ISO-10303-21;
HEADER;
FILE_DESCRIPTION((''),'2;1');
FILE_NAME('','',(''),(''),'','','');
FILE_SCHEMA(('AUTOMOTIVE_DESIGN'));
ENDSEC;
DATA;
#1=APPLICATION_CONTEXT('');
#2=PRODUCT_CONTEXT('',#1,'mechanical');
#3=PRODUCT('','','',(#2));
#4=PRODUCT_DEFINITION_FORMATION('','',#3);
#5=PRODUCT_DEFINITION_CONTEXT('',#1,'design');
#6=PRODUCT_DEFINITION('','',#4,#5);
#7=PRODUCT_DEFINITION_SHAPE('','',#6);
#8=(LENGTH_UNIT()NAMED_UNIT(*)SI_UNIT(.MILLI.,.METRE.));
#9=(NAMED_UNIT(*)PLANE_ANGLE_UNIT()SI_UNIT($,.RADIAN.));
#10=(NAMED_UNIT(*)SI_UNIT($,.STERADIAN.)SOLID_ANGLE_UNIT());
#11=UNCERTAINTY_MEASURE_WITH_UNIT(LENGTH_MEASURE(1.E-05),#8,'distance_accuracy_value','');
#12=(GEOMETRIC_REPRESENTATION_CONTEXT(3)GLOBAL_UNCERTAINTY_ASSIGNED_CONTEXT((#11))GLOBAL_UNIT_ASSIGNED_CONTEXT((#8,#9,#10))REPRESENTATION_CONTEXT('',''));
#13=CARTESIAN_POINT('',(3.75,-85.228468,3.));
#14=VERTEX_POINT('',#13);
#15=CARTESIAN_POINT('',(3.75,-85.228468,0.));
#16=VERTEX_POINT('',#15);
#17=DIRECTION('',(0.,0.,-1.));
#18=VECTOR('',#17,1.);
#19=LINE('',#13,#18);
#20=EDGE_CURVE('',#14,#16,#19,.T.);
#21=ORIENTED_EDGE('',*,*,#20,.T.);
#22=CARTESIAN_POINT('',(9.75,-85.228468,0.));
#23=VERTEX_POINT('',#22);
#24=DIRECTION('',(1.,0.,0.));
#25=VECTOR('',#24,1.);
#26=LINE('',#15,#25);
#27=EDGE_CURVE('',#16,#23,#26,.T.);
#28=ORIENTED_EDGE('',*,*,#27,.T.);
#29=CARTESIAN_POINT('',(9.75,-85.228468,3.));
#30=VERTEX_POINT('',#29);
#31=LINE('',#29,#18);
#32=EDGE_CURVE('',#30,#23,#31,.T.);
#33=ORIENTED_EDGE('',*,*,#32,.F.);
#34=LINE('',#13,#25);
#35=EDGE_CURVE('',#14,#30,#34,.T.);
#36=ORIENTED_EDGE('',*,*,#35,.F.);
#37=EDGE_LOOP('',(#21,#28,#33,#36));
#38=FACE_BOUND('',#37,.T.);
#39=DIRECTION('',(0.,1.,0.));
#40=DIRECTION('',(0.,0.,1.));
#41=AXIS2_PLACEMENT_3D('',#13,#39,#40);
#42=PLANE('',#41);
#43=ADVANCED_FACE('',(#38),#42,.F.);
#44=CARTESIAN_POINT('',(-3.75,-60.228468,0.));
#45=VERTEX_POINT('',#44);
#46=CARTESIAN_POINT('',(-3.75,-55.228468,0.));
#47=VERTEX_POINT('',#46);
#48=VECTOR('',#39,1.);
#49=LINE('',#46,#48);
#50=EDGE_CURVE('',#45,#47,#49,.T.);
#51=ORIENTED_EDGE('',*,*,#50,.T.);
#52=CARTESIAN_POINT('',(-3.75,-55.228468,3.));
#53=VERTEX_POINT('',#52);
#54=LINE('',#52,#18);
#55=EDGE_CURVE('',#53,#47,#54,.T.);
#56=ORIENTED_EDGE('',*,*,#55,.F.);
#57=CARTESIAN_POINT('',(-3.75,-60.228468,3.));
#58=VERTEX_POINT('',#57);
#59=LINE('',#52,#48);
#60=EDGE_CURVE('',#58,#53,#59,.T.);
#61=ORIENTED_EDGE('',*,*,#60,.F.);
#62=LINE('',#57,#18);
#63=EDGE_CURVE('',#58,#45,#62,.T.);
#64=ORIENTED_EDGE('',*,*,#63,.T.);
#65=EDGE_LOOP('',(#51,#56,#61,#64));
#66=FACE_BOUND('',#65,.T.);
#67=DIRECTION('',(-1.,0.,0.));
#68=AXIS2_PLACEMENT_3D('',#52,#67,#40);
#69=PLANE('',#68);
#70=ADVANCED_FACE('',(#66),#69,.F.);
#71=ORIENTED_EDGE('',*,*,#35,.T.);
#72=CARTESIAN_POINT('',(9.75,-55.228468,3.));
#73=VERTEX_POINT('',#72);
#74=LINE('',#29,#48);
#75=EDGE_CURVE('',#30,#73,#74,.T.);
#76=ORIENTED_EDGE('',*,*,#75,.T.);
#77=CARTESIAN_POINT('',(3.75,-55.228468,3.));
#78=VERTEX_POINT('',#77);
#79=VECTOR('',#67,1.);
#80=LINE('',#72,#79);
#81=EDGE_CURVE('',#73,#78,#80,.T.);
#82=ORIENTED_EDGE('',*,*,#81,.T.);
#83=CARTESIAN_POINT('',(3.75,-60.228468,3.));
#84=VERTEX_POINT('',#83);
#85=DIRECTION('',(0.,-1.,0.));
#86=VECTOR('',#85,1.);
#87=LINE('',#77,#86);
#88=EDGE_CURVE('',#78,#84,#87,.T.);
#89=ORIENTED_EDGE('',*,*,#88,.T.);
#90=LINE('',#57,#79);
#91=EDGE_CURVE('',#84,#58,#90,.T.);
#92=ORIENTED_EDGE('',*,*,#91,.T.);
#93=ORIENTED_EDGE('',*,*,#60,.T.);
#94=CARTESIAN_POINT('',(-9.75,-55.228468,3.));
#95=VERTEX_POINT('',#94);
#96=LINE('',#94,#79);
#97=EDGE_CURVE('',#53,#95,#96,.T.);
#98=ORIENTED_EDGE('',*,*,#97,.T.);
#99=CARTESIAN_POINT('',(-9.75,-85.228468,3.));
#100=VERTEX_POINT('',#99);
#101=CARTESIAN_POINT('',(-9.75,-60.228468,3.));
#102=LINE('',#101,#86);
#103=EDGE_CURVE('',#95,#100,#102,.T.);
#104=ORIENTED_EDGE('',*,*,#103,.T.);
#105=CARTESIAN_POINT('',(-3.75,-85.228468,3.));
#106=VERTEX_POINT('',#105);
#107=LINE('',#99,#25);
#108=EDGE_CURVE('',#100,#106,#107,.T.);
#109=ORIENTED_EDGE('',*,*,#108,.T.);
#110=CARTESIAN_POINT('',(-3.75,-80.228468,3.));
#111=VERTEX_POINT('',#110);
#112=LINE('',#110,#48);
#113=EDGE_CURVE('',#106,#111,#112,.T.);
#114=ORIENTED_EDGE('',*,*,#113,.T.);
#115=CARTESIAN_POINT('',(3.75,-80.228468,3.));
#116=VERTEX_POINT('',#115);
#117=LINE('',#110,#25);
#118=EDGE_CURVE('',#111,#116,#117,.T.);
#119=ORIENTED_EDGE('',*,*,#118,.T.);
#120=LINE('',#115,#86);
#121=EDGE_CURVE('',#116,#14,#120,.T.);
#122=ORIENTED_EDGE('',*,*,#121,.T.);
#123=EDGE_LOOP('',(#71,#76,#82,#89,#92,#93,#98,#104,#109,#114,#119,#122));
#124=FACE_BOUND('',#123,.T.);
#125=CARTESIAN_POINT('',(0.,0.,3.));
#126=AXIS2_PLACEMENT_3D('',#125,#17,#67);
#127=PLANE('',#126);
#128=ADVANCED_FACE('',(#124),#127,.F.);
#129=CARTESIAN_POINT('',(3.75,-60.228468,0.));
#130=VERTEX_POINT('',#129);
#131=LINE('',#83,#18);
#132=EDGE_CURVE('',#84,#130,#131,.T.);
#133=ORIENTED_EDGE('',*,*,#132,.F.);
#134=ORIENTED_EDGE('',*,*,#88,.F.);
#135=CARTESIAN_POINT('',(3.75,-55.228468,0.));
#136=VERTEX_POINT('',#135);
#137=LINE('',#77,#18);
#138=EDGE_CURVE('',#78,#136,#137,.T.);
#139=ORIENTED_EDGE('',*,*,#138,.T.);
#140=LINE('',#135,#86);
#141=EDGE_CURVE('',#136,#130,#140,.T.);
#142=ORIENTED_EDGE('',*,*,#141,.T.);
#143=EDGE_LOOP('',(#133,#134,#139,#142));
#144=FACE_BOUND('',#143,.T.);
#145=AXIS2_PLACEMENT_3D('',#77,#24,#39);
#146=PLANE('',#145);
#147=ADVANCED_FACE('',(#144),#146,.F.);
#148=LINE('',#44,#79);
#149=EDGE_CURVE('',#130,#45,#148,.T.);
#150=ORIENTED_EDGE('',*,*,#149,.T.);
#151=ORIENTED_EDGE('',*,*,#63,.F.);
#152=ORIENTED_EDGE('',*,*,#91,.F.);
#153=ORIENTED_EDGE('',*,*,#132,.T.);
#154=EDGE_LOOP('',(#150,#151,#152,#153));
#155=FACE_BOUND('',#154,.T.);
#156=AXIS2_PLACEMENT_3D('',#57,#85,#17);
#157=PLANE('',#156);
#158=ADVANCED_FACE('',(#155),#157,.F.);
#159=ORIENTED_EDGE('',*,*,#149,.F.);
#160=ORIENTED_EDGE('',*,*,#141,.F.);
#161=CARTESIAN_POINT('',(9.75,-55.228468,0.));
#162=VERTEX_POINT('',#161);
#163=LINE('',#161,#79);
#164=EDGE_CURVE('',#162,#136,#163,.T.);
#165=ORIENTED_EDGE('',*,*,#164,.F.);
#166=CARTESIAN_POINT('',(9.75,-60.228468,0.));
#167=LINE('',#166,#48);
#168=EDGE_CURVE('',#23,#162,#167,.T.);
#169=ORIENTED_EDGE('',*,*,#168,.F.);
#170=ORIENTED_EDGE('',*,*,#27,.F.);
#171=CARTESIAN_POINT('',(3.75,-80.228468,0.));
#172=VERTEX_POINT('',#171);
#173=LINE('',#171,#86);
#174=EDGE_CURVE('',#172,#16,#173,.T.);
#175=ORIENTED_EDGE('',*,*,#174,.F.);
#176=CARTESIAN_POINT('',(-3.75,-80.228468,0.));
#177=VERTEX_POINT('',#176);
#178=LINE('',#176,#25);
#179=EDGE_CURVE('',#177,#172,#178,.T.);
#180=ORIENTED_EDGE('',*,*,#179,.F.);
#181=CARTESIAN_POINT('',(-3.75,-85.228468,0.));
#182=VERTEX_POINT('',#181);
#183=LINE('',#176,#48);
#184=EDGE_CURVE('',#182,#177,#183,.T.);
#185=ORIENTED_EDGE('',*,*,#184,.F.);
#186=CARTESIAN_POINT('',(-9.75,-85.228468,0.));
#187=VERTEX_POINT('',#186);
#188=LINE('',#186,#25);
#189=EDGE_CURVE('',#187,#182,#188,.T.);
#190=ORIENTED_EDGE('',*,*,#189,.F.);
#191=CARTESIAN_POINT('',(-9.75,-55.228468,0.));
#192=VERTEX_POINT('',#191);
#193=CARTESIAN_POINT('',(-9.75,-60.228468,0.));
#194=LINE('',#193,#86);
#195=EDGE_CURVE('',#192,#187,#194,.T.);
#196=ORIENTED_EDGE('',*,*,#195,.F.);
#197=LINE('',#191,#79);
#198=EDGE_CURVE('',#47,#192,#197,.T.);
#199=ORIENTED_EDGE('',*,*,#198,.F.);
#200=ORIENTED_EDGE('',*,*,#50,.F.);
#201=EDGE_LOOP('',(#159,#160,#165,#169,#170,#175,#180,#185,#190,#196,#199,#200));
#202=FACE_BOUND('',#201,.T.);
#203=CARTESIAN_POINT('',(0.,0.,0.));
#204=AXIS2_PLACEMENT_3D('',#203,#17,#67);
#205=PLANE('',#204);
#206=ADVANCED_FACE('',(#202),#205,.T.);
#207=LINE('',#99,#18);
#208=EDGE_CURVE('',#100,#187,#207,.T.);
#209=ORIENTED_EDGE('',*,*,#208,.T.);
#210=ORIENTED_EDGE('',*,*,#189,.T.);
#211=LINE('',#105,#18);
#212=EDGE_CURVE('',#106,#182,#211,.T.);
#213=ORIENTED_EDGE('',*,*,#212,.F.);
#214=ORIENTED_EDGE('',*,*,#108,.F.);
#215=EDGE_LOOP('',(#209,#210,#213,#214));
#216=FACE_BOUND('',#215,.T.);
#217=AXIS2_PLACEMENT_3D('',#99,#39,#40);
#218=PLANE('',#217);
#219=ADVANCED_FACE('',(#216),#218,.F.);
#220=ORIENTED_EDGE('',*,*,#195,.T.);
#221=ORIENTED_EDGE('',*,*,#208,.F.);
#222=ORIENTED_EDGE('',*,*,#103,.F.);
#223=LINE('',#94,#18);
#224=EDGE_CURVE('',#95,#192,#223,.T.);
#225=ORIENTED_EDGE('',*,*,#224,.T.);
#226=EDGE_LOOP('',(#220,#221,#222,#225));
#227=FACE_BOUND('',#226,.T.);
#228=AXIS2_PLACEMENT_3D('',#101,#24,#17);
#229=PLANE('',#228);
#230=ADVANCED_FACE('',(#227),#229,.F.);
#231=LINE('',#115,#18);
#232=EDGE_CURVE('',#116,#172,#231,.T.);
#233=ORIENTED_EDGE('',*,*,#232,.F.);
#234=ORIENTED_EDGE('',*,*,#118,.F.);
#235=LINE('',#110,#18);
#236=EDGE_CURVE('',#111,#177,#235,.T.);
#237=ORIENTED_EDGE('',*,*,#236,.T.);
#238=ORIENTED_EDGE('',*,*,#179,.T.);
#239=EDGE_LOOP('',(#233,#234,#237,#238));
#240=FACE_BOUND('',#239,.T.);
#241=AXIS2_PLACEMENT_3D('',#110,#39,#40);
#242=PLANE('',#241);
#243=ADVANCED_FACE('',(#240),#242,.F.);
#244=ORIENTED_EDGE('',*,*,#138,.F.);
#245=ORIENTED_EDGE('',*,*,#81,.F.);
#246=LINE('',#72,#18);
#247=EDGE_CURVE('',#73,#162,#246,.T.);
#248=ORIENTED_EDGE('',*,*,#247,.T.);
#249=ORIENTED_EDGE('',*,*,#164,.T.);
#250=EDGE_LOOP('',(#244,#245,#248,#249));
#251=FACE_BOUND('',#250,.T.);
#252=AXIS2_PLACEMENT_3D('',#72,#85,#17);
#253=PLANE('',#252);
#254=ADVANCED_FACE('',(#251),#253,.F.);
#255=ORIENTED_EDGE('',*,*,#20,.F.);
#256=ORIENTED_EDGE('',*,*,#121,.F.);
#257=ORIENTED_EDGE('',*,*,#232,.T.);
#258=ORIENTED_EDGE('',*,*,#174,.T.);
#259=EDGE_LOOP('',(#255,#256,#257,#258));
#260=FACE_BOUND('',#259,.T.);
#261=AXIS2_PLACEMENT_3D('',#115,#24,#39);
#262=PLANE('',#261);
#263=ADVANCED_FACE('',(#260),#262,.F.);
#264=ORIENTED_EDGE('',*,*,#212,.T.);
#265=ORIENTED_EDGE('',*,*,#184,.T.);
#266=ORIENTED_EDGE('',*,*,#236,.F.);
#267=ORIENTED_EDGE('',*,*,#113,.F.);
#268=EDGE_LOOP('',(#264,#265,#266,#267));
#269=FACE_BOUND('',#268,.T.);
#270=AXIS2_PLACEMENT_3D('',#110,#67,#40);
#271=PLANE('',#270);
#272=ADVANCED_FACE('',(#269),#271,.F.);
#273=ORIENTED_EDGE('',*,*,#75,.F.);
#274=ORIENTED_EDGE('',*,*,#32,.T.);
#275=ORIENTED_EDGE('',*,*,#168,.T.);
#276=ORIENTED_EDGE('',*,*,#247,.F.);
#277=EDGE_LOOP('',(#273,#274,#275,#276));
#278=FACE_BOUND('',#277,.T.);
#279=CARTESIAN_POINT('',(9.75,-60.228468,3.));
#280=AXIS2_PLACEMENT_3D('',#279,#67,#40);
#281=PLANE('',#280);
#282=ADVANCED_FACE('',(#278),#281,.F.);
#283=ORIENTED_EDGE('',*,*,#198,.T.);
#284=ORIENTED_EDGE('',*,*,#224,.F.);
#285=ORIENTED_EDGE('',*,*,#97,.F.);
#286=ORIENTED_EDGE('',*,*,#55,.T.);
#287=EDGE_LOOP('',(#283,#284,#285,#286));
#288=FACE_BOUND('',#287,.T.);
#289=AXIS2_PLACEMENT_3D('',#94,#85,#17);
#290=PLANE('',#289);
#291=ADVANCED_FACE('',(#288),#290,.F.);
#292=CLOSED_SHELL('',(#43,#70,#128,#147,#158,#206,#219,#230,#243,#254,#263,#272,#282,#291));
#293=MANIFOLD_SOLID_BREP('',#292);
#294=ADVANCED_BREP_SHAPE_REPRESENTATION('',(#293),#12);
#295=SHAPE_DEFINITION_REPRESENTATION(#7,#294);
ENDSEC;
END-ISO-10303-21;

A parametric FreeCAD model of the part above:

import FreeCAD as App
import Part
import Sketcher
from FreeCAD import Vector
Q = App.Units.Quantity

doc = App.newDocument("Part")
body = doc.addObject("PartDesign::Body", "Body")

# Sketch on XY plane
sketch1 = body.newObject("Sketcher::SketchObject", "Sketch")
sketch1.AttachmentSupport = (doc.getObject("XY_Plane"), [""])
sketch1.MapMode = "FlatFace"
sketch1.addGeometry([
    Part.LineSegment(Vector(10, -85, 0), Vector(10, -55, 0)),  # 0
    Part.LineSegment(Vector(10, -55, 0), Vector(4, -55, 0)),  # 1
    Part.LineSegment(Vector(4, -55, 0), Vector(4, -60, 0)),  # 2
    Part.LineSegment(Vector(4, -60, 0), Vector(-4, -60, 0)),  # 3
    Part.LineSegment(Vector(-4, -60, 0), Vector(-4, -55, 0)),  # 4
    Part.LineSegment(Vector(-4, -55, 0), Vector(-10, -55, 0)),  # 5
    Part.LineSegment(Vector(-10, -55, 0), Vector(-10, -85, 0)),  # 6
    Part.LineSegment(Vector(-10, -85, 0), Vector(-4, -85, 0)),  # 7
    Part.LineSegment(Vector(-4, -85, 0), Vector(-4, -80, 0)),  # 8
    Part.LineSegment(Vector(-4, -80, 0), Vector(4, -80, 0)),  # 9
    Part.LineSegment(Vector(4, -80, 0), Vector(4, -85, 0)),  # 10
    Part.LineSegment(Vector(4, -85, 0), Vector(10, -85, 0)),  # 11
], False)
sketch1.addConstraint([
    Sketcher.Constraint("Coincident", 0, 2, 1, 1),
    Sketcher.Constraint("Coincident", 1, 2, 2, 1),
    Sketcher.Constraint("Coincident", 2, 2, 3, 1),
    Sketcher.Constraint("Coincident", 3, 2, 4, 1),
    Sketcher.Constraint("Coincident", 4, 2, 5, 1),
    Sketcher.Constraint("Coincident", 5, 2, 6, 1),
    Sketcher.Constraint("Coincident", 6, 2, 7, 1),
    Sketcher.Constraint("Coincident", 7, 2, 8, 1),
    Sketcher.Constraint("Coincident", 8, 2, 9, 1),
    Sketcher.Constraint("Coincident", 9, 2, 10, 1),
    Sketcher.Constraint("Coincident", 10, 2, 11, 1),
    Sketcher.Constraint("Coincident", 11, 2, 0, 1),
    Sketcher.Constraint("Vertical", 0),
    Sketcher.Constraint("Horizontal", 1),
    Sketcher.Constraint("Vertical", 2),
    Sketcher.Constraint("Horizontal", 3),
    Sketcher.Constraint("Vertical", 4),
    Sketcher.Constraint("Horizontal", 5),
    Sketcher.Constraint("Vertical", 6),
    Sketcher.Constraint("Horizontal", 7),
    Sketcher.Constraint("Vertical", 8),
    Sketcher.Constraint("Horizontal", 9),
    Sketcher.Constraint("Vertical", 10),
    Sketcher.Constraint("Horizontal", 11),
    Sketcher.Constraint("Symmetric", 1, 2, 4, 2, -2),
    Sketcher.Constraint("Symmetric", 7, 2, 10, 2, -2),
    Sketcher.Constraint("Vertical", 4, 2, 7, 2),
    Sketcher.Constraint("Equal", 1, 5),
    Sketcher.Constraint("Equal", 4, 8),
    Sketcher.Constraint("DistanceX", 1, 2, 1, 1, Q("6 mm")),
    Sketcher.Constraint("DistanceY", 0, 1, 0, 2, Q("30 mm")),
    Sketcher.Constraint("DistanceY", 2, 2, 2, 1, Q("5 mm")),
    Sketcher.Constraint("DistanceX", 3, 2, 3, 1, Q("7.5 mm")),
    Sketcher.Constraint("DistanceY", 0, 2, -1, 1, Q("55.228468 mm")),
])
pad1 = body.newObject("PartDesign::Pad", "Pad")
pad1.Profile = sketch1
pad1.Length = 3

doc.recompute()
